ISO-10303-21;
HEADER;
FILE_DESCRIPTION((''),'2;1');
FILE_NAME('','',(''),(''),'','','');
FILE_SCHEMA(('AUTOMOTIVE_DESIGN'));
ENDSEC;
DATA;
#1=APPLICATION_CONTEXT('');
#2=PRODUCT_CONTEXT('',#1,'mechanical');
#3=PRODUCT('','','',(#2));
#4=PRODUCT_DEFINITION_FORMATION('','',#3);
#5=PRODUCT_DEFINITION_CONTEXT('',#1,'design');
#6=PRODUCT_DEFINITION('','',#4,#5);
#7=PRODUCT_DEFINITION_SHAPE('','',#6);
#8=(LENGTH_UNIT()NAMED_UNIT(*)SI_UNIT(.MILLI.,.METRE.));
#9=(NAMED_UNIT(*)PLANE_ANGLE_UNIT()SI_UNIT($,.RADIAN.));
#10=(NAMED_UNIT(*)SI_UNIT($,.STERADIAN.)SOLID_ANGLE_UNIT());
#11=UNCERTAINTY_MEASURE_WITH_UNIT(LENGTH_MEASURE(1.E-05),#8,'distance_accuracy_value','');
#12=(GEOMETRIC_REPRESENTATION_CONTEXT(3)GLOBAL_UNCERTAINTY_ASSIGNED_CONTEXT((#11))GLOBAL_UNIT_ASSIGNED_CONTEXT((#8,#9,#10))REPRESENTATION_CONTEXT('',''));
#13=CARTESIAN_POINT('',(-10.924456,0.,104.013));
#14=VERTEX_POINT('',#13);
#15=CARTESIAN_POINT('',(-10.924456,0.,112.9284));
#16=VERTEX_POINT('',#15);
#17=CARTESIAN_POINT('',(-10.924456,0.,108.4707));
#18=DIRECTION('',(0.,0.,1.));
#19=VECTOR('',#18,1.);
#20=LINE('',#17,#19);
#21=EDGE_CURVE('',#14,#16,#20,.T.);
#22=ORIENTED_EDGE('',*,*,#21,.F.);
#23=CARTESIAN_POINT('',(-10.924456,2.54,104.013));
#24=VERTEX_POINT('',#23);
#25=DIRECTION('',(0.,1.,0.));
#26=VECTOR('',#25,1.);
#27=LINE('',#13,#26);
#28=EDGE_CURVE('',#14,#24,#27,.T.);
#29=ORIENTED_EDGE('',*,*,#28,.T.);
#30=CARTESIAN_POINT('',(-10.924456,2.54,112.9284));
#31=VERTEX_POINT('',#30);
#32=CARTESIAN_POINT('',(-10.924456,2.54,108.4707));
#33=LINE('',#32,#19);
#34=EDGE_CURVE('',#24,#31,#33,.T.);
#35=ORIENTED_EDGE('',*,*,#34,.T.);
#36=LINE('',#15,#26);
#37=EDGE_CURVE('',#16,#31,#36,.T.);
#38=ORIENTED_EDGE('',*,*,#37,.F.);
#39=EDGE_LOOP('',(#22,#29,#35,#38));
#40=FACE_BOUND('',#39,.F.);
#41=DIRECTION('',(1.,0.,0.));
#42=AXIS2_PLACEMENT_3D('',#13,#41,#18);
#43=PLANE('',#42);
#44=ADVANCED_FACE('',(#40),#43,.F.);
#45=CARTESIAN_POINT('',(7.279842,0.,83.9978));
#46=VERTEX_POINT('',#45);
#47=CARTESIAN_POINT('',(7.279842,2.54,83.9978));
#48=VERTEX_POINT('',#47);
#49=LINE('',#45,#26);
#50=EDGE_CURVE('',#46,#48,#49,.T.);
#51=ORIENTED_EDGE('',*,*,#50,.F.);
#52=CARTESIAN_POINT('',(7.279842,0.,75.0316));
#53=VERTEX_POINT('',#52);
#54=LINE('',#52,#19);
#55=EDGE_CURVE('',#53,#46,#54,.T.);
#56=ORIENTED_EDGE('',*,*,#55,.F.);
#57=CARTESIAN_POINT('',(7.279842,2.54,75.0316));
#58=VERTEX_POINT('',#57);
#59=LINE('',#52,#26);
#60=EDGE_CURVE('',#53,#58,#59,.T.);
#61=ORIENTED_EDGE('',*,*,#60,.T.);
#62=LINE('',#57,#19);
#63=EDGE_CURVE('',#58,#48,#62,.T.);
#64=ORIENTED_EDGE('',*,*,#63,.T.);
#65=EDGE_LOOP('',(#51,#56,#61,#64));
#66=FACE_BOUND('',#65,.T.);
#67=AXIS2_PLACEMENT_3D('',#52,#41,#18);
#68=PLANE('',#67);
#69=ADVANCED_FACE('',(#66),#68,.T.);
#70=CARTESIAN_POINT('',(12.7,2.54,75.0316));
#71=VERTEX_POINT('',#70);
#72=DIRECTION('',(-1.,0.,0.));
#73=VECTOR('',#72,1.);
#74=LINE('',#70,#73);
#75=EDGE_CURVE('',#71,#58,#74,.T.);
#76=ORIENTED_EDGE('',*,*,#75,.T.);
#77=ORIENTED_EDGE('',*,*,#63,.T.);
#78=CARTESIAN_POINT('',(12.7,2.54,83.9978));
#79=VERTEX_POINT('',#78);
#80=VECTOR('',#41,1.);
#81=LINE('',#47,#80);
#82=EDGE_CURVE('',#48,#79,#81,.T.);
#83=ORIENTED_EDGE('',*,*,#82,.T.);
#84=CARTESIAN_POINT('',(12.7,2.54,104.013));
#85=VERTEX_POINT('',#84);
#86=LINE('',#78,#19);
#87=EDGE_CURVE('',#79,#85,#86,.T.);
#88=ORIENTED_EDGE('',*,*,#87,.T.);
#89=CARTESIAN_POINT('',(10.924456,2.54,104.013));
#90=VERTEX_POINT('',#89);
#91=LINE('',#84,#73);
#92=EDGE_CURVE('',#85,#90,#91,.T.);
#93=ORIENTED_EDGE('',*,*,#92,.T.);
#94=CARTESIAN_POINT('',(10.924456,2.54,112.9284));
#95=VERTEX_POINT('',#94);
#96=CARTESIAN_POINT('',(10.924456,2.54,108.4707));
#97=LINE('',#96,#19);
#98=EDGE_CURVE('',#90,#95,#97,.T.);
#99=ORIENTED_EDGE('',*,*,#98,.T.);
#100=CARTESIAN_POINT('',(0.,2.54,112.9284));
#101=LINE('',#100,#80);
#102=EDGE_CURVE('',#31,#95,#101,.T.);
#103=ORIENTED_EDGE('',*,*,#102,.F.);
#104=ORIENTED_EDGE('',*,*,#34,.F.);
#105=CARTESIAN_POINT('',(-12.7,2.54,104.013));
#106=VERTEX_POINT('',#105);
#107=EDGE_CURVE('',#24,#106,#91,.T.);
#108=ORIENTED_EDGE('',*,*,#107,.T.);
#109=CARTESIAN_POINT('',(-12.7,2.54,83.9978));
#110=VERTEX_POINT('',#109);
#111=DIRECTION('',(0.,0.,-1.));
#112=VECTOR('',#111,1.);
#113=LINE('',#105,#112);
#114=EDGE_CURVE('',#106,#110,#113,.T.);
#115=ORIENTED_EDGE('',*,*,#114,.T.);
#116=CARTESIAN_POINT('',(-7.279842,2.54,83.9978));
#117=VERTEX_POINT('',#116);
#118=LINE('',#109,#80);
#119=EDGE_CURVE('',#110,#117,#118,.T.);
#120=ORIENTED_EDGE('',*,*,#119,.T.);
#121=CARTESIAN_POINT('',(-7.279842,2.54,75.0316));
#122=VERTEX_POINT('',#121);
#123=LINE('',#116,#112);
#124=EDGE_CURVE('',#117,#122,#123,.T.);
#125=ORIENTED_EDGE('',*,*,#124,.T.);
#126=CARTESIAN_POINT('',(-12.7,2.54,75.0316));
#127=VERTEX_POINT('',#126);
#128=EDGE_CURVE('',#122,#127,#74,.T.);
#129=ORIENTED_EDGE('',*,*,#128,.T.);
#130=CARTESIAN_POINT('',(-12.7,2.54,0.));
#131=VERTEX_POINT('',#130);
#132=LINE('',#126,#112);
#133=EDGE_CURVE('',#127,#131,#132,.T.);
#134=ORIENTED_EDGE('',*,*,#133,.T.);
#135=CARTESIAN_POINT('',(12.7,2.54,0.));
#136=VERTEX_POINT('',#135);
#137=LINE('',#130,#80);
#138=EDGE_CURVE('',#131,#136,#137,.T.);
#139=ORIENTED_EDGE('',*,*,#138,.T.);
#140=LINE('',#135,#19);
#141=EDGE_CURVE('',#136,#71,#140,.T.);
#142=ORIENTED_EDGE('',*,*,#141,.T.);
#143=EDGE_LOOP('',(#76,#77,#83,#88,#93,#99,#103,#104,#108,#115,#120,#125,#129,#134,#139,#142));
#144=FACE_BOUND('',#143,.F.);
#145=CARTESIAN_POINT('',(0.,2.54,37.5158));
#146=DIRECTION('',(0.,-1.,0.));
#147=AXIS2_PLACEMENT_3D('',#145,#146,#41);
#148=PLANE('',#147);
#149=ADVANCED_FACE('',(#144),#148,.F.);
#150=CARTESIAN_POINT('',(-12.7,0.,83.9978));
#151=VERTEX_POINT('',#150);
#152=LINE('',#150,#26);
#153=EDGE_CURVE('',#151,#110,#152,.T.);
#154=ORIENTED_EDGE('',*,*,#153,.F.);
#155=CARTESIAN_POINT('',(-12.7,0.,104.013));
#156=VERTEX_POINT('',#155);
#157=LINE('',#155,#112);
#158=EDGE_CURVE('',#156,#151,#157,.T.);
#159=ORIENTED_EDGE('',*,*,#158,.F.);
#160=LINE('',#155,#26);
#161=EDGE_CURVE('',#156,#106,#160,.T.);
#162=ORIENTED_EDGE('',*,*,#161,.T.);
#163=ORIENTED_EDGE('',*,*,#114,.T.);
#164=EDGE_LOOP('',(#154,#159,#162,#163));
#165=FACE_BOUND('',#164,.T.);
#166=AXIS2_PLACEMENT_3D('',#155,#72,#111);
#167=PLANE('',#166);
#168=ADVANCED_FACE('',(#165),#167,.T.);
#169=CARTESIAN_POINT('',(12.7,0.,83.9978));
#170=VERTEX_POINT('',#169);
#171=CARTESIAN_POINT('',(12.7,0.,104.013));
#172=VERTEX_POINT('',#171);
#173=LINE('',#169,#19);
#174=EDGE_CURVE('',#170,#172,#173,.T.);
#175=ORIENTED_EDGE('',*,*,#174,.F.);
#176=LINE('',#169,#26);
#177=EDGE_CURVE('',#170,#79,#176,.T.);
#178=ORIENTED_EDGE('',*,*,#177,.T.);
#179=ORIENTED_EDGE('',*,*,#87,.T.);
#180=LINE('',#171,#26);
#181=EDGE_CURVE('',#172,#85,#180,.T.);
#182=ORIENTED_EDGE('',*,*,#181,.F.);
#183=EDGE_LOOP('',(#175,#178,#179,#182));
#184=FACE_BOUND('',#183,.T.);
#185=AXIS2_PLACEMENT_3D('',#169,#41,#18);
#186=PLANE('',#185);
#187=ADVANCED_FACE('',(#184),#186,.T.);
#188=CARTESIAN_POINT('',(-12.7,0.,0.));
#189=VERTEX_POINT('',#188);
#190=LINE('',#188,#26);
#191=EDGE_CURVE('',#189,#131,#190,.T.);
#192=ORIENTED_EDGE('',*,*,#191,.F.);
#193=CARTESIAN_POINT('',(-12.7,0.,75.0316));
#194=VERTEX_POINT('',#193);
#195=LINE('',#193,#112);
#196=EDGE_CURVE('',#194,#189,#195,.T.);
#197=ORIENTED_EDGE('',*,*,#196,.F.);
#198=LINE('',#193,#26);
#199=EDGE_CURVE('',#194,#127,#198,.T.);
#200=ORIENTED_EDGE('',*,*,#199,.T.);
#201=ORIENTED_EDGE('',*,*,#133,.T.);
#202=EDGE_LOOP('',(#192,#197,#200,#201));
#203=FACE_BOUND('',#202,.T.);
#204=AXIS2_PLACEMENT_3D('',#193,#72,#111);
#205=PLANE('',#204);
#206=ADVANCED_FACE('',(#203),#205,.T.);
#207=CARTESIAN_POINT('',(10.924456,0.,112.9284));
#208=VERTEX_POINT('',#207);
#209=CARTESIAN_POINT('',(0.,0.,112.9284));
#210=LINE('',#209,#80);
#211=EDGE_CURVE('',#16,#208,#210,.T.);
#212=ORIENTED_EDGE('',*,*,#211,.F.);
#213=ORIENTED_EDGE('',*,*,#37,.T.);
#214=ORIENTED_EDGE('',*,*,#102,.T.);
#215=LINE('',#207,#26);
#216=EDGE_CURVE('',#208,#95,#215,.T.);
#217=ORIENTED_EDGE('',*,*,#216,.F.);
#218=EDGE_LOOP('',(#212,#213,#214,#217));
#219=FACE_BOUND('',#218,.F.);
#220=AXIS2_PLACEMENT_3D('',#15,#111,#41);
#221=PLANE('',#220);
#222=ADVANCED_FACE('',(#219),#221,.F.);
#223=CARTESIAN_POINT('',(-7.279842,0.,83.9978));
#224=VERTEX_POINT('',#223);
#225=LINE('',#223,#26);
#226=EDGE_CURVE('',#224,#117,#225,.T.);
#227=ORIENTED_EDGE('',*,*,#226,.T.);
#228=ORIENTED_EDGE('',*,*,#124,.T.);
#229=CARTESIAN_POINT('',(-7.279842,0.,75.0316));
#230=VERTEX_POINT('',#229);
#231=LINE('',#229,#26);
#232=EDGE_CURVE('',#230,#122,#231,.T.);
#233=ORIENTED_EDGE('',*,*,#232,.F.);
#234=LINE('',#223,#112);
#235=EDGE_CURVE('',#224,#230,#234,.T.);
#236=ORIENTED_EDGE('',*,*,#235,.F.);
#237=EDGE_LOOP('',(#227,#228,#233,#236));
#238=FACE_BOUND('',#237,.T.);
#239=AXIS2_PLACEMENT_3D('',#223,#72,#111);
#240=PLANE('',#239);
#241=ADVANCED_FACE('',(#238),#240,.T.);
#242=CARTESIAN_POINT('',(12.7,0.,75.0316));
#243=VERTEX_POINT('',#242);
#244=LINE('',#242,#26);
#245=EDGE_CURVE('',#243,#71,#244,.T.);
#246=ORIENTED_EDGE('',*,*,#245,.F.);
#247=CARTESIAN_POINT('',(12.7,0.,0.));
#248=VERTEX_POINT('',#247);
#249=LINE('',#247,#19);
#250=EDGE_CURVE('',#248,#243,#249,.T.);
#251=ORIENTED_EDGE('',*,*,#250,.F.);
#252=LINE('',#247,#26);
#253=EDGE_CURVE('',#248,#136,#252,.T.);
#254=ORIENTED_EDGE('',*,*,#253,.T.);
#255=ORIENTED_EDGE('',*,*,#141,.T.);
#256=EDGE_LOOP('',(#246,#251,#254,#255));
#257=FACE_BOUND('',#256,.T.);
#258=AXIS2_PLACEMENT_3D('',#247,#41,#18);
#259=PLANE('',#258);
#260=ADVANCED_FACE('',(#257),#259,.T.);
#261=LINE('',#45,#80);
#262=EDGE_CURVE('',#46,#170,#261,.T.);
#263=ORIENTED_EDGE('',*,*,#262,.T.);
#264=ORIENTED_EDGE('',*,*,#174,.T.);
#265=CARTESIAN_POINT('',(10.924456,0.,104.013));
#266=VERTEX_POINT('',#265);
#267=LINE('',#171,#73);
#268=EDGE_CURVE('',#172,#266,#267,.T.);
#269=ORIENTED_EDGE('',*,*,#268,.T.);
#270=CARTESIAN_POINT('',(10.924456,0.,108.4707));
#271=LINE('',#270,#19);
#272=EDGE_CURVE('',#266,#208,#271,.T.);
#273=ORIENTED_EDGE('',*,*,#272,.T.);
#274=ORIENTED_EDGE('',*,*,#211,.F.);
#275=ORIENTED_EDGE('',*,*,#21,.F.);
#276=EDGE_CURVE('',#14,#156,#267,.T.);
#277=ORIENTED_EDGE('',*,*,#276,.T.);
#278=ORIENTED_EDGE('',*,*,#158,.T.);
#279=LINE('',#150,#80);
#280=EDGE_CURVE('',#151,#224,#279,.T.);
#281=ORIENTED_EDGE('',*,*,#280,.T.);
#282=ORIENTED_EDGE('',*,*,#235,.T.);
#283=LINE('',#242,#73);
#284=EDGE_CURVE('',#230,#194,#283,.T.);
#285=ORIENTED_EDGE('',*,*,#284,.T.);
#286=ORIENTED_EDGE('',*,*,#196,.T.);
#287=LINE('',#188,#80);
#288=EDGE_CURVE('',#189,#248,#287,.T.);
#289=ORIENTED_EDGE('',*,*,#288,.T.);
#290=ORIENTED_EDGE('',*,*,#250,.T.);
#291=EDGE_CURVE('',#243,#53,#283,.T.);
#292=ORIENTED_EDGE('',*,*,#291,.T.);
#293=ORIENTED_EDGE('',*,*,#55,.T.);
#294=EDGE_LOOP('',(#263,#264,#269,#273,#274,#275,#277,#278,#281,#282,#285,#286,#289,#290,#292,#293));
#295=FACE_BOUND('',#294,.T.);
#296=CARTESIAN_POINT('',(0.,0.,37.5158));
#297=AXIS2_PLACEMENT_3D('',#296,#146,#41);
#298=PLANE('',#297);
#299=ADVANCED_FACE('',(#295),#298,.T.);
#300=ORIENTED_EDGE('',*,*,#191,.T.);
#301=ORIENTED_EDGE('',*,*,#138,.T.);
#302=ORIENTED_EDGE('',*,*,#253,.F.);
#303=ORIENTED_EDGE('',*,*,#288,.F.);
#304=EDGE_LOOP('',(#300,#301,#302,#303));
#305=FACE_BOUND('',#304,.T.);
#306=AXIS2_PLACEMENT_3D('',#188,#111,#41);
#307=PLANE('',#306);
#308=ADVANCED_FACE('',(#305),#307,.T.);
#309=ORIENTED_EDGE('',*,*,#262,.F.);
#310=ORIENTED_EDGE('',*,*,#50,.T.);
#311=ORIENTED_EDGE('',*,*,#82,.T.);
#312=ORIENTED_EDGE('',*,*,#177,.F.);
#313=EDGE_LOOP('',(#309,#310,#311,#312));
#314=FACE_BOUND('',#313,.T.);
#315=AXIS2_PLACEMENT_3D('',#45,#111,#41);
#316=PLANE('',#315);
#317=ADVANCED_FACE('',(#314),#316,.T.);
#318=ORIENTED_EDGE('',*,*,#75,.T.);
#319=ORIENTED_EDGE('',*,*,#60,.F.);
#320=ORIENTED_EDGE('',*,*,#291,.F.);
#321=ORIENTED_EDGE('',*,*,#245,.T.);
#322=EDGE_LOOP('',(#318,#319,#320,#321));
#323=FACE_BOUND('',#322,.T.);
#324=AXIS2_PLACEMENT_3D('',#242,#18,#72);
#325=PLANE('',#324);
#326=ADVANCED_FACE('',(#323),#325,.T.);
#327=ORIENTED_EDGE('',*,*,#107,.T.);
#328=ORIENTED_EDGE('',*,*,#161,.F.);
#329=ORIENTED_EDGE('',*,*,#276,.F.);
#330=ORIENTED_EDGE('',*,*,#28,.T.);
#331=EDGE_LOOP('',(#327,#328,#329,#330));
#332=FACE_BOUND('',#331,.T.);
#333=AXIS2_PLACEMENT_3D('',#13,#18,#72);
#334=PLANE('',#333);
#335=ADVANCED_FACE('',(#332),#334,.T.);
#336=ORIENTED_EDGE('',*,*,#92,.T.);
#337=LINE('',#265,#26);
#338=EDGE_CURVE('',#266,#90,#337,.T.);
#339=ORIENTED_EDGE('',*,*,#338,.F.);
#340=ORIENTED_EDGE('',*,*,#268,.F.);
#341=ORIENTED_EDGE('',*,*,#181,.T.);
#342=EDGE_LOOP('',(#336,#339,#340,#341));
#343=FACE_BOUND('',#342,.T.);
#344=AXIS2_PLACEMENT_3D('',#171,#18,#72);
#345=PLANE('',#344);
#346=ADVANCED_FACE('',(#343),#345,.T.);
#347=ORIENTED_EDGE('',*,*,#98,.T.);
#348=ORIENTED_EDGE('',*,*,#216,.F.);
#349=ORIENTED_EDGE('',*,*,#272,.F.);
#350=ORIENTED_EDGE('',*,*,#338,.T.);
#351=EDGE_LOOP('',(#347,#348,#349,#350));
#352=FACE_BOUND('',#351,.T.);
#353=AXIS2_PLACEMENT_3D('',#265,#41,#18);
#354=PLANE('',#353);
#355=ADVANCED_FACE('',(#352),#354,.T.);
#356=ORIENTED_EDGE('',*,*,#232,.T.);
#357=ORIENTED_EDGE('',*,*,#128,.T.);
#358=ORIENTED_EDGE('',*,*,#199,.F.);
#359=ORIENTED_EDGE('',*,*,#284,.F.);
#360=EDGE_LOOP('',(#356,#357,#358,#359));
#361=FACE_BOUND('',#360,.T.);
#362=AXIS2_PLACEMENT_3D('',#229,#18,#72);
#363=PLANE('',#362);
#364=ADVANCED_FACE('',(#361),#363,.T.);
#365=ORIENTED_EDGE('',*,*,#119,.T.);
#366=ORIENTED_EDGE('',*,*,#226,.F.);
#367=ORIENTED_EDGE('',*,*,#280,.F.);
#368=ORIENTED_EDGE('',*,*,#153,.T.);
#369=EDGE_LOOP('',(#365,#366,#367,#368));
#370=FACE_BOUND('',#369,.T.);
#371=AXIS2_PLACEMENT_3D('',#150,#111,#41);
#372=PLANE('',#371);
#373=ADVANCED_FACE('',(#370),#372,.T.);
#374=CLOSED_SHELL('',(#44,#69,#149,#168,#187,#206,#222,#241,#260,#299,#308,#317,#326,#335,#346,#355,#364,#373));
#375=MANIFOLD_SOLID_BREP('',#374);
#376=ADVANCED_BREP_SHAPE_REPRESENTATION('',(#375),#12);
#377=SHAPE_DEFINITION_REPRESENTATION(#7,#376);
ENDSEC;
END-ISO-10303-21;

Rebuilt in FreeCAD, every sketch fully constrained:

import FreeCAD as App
import Part
import Sketcher
from FreeCAD import Vector
Q = App.Units.Quantity

doc = App.newDocument("Part")
params = doc.addObject("Spreadsheet::Sheet", "Params")
for row, (alias, value) in enumerate([
    ("sketch1_width", "1 in"),
    ("sketch1_height", "2.954 in"),
    ("sketch1_height2", "0.353 in"),
    ("sketch1_height3", "0.788 in"),
    ("sketch1_height4", "0.351 in"),
    ("pad1_length", "0.1 in"),
], start=1):
    params.set(f"A{row}", alias)
    params.set(f"B{row}", "=" + value)
    params.setAlias(f"B{row}", alias)

body = doc.addObject("PartDesign::Body", "Body")

sketch1 = body.newObject("Sketcher::SketchObject", "Sketch")
sketch1.AttachmentSupport = (doc.getObject("XZ_Plane"), [""])
sketch1.MapMode = "FlatFace"
sketch1.addGeometry([
    Part.LineSegment(Vector(-12.7, 0, 0), Vector(12.7, 0, 0)),
    Part.LineSegment(Vector(12.7, 0, 0), Vector(12.7, 75, 0)),
    Part.LineSegment(Vector(12.7, 75, 0), Vector(7.3, 75, 0)),
    Part.LineSegment(Vector(7.3, 75, 0), Vector(7.3, 84, 0)),
    Part.LineSegment(Vector(7.3, 84, 0), Vector(12.7, 84, 0)),
    Part.LineSegment(Vector(12.7, 84, 0), Vector(12.7, 104, 0)),
    Part.LineSegment(Vector(12.7, 104, 0), Vector(10.9, 104, 0)),
    Part.LineSegment(Vector(10.9, 104, 0), Vector(10.9, 112.9, 0)),
    Part.LineSegment(Vector(10.9, 112.9, 0), Vector(-10.9, 112.9, 0)),
    Part.LineSegment(Vector(-10.9, 112.9, 0), Vector(-10.9, 104, 0)),
    Part.LineSegment(Vector(-10.9, 104, 0), Vector(-12.7, 104, 0)),
    Part.LineSegment(Vector(-12.7, 104, 0), Vector(-12.7, 84, 0)),
    Part.LineSegment(Vector(-12.7, 84, 0), Vector(-7.3, 84, 0)),
    Part.LineSegment(Vector(-7.3, 84, 0), Vector(-7.3, 75, 0)),
    Part.LineSegment(Vector(-7.3, 75, 0), Vector(-12.7, 75, 0)),
    Part.LineSegment(Vector(-12.7, 75, 0), Vector(-12.7, 0, 0)),
], False)
sketch1.addConstraint([
    Sketcher.Constraint("Coincident", 0, 2, 1, 1),
    Sketcher.Constraint("Coincident", 1, 2, 2, 1),
    Sketcher.Constraint("Coincident", 2, 2, 3, 1),
    Sketcher.Constraint("Coincident", 3, 2, 4, 1),
    Sketcher.Constraint("Coincident", 4, 2, 5, 1),
    Sketcher.Constraint("Coincident", 5, 2, 6, 1),
    Sketcher.Constraint("Coincident", 6, 2, 7, 1),
    Sketcher.Constraint("Coincident", 7, 2, 8, 1),
    Sketcher.Constraint("Coincident", 8, 2, 9, 1),
    Sketcher.Constraint("Coincident", 9, 2, 10, 1),
    Sketcher.Constraint("Coincident", 10, 2, 11, 1),
    Sketcher.Constraint("Coincident", 11, 2, 12, 1),
    Sketcher.Constraint("Coincident", 12, 2, 13, 1),
    Sketcher.Constraint("Coincident", 13, 2, 14, 1),
    Sketcher.Constraint("Coincident", 14, 2, 15, 1),
    Sketcher.Constraint("Coincident", 15, 2, 0, 1),
    Sketcher.Constraint("Horizontal", 0),
    Sketcher.Constraint("Vertical", 1),
    Sketcher.Constraint("Horizontal", 2),
    Sketcher.Constraint("Vertical", 3),
    Sketcher.Constraint("Horizontal", 4),
    Sketcher.Constraint("Vertical", 5),
    Sketcher.Constraint("Horizontal", 6),
    Sketcher.Constraint("Vertical", 7),
    Sketcher.Constraint("Horizontal", 8),
    Sketcher.Constraint("Vertical", 9),
    Sketcher.Constraint("Horizontal", 10),
    Sketcher.Constraint("Vertical", 11),
    Sketcher.Constraint("Horizontal", 12),
    Sketcher.Constraint("Vertical", 13),
    Sketcher.Constraint("Horizontal", 14),
    Sketcher.Constraint("Vertical", 15),
    Sketcher.Constraint("Symmetric", 0, 2, 15, 2, -1, 1),
    Sketcher.Constraint("Symmetric", 6, 2, 9, 2, -2),
    Sketcher.Constraint("Symmetric", 4, 2, 11, 2, -2),
    Sketcher.Constraint("Symmetric", 2, 2, 13, 2, -2),
    Sketcher.Constraint("Vertical", 1, 2, 4, 2),
    Sketcher.Constraint("DistanceX", 0, 1, 0, 2, Q("1 in")),
    Sketcher.Constraint("DistanceY", 1, 1, 1, 2, Q("2.954 in")),
    Sketcher.Constraint("DistanceY", 3, 1, 3, 2, Q("0.353 in")),
    Sketcher.Constraint("DistanceY", 5, 1, 5, 2, Q("0.788 in")),
    Sketcher.Constraint("DistanceY", 7, 1, 7, 2, Q("0.351 in")),
    Sketcher.Constraint("DistanceX", 8, 2, 8, 1, Q("21.848912 mm")),
    Sketcher.Constraint("DistanceX", 8, 2, 3, 2, Q("18.204298 mm")),
])
sketch1.setExpression("Constraints[37]", "Params.sketch1_width")
sketch1.setExpression("Constraints[38]", "Params.sketch1_height")
sketch1.setExpression("Constraints[39]", "Params.sketch1_height2")
sketch1.setExpression("Constraints[40]", "Params.sketch1_height3")
sketch1.setExpression("Constraints[41]", "Params.sketch1_height4")
pad1 = body.newObject("PartDesign::Pad", "Pad")
pad1.Profile = sketch1
pad1.setExpression("Length", "Params.pad1_length")
pad1.Reversed = True

doc.recompute()
